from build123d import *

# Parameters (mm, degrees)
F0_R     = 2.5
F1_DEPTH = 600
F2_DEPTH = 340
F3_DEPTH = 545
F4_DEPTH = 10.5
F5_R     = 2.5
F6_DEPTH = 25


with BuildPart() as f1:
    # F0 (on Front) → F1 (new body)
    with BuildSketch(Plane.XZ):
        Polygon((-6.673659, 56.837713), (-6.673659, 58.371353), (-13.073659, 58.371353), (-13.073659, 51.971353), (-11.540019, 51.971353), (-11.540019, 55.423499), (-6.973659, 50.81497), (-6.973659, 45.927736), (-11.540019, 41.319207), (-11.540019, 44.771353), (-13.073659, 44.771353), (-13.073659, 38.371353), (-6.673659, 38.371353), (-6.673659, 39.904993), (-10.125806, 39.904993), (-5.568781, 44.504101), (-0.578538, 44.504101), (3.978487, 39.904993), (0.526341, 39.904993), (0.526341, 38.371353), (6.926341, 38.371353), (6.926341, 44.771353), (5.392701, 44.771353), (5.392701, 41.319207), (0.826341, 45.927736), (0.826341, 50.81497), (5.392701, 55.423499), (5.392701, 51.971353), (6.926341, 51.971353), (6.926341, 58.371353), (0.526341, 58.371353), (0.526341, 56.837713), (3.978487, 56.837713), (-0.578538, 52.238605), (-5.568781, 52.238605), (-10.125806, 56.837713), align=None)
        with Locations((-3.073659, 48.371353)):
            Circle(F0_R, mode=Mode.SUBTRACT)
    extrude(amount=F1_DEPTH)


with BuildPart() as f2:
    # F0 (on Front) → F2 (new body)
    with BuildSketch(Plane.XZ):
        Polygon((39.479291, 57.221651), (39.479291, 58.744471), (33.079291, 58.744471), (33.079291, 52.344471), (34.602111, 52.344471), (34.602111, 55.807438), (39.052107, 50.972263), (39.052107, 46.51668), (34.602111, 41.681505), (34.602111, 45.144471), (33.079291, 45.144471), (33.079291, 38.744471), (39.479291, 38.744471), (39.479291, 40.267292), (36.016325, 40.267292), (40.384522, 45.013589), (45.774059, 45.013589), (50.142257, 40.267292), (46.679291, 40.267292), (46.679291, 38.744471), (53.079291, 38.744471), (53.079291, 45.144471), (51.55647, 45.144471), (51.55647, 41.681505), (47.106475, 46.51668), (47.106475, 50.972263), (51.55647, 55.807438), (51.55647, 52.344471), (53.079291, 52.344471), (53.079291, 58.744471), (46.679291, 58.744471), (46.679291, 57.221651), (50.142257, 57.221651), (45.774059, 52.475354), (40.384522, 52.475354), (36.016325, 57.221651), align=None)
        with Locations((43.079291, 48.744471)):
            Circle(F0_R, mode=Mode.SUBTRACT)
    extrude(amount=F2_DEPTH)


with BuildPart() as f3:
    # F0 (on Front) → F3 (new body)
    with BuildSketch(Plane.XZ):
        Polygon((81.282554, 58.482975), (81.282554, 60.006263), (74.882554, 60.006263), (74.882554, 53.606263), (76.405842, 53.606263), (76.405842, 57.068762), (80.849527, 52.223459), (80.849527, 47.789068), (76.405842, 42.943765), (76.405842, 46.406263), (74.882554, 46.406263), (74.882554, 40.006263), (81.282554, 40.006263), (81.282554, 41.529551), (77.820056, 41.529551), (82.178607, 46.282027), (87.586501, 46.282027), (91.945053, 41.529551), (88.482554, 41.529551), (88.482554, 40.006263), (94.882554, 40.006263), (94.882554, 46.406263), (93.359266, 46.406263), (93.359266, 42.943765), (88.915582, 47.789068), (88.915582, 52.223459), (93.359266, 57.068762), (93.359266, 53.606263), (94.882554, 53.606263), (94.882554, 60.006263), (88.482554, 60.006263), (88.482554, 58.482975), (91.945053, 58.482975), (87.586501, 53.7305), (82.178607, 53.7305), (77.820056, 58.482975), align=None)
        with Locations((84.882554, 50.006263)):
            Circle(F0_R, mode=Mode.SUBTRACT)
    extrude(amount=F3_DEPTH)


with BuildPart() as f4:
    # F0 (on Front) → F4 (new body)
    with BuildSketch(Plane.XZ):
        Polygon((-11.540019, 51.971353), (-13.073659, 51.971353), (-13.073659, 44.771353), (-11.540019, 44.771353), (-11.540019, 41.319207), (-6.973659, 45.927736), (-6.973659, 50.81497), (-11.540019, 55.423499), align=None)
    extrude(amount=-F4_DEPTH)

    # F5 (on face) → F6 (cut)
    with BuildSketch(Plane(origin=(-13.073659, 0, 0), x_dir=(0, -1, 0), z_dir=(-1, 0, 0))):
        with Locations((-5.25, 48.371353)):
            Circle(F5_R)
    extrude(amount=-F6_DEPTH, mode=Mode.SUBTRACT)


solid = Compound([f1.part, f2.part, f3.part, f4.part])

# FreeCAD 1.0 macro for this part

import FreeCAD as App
import Part
import Sketcher

V = App.Vector
Q = App.Units.Quantity

doc = App.newDocument("Part")
body = doc.addObject("PartDesign::Body", "Body")

# Sketch on XZ plane
sketch1 = body.newObject("Sketcher::SketchObject", "Sketch")
sketch1.AttachmentSupport = (doc.getObject("XZ_Plane"), [""])
sketch1.MapMode = "FlatFace"
sketch1.addGeometry([
    Part.LineSegment(V(-6.673659, 56.837713, 0), V(-6.673659, 58.371353, 0)),  # 0
    Part.LineSegment(V(-6.673659, 58.371353, 0), V(-13.073659, 58.371353, 0)),  # 1
    Part.LineSegment(V(-13.073659, 58.371353, 0), V(-13.073659, 51.971353, 0)),  # 2
    Part.LineSegment(V(-13.073659, 51.971353, 0), V(-11.540019, 51.971353, 0)),  # 3
    Part.LineSegment(V(-11.540019, 51.971353, 0), V(-11.540019, 55.423499, 0)),  # 4
    Part.LineSegment(V(-11.540019, 55.423499, 0), V(-6.973659, 50.81497, 0)),  # 5
    Part.LineSegment(V(-6.973659, 50.81497, 0), V(-6.973659, 45.927736, 0)),  # 6
    Part.LineSegment(V(-6.973659, 45.927736, 0), V(-11.540019, 41.319207, 0)),  # 7
    Part.LineSegment(V(-11.540019, 41.319207, 0), V(-11.540019, 44.771353, 0)),  # 8
    Part.LineSegment(V(-11.540019, 44.771353, 0), V(-13.073659, 44.771353, 0)),  # 9
    Part.LineSegment(V(-13.073659, 44.771353, 0), V(-13.073659, 38.371353, 0)),  # 10
    Part.LineSegment(V(-13.073659, 38.371353, 0), V(-6.673659, 38.371353, 0)),  # 11
    Part.LineSegment(V(-6.673659, 38.371353, 0), V(-6.673659, 39.904993, 0)),  # 12
    Part.LineSegment(V(-6.673659, 39.904993, 0), V(-10.125806, 39.904993, 0)),  # 13
    Part.LineSegment(V(-10.125806, 39.904993, 0), V(-5.568781, 44.504101, 0)),  # 14
    Part.LineSegment(V(-5.568781, 44.504101, 0), V(-0.578538, 44.504101, 0)),  # 15
    Part.LineSegment(V(-0.578538, 44.504101, 0), V(3.978487, 39.904993, 0)),  # 16
    Part.LineSegment(V(3.978487, 39.904993, 0), V(0.526341, 39.904993, 0)),  # 17
    Part.LineSegment(V(0.526341, 39.904993, 0), V(0.526341, 38.371353, 0)),  # 18
    Part.LineSegment(V(0.526341, 38.371353, 0), V(6.926341, 38.371353, 0)),  # 19
    Part.LineSegment(V(6.926341, 38.371353, 0), V(6.926341, 44.771353, 0)),  # 20
    Part.LineSegment(V(6.926341, 44.771353, 0), V(5.392701, 44.771353, 0)),  # 21
    Part.LineSegment(V(5.392701, 44.771353, 0), V(5.392701, 41.319207, 0)),  # 22
    Part.LineSegment(V(5.392701, 41.319207, 0), V(0.826341, 45.927736, 0)),  # 23
    Part.LineSegment(V(0.826341, 45.927736, 0), V(0.826341, 50.81497, 0)),  # 24
    Part.LineSegment(V(0.826341, 50.81497, 0), V(5.392701, 55.423499, 0)),  # 25
    Part.LineSegment(V(5.392701, 55.423499, 0), V(5.392701, 51.971353, 0)),  # 26
    Part.LineSegment(V(5.392701, 51.971353, 0), V(6.926341, 51.971353, 0)),  # 27
    Part.LineSegment(V(6.926341, 51.971353, 0), V(6.926341, 58.371353, 0)),  # 28
    Part.LineSegment(V(6.926341, 58.371353, 0), V(0.526341, 58.371353, 0)),  # 29
    Part.LineSegment(V(0.526341, 58.371353, 0), V(0.526341, 56.837713, 0)),  # 30
    Part.LineSegment(V(0.526341, 56.837713, 0), V(3.978487, 56.837713, 0)),  # 31
    Part.LineSegment(V(3.978487, 56.837713, 0), V(-0.578538, 52.238605, 0)),  # 32
    Part.LineSegment(V(-0.578538, 52.238605, 0), V(-5.568781, 52.238605, 0)),  # 33
    Part.LineSegment(V(-5.568781, 52.238605, 0), V(-10.125806, 56.837713, 0)),  # 34
    Part.LineSegment(V(-10.125806, 56.837713, 0), V(-6.673659, 56.837713, 0)),  # 35
    Part.Circle(V(-3.073659, 48.371353, 0), V(0, 0, 1), 2.5),  # 36
], False)
sketch1.addConstraint([
    Sketcher.Constraint("Coincident", 0, 2, 1, 1),
    Sketcher.Constraint("Coincident", 1, 2, 2, 1),
    Sketcher.Constraint("Coincident", 2, 2, 3, 1),
    Sketcher.Constraint("Coincident", 3, 2, 4, 1),
    Sketcher.Constraint("Coincident", 4, 2, 5, 1),
    Sketcher.Constraint("Coincident", 5, 2, 6, 1),
    Sketcher.Constraint("Coincident", 6, 2, 7, 1),
    Sketcher.Constraint("Coincident", 7, 2, 8, 1),
    Sketcher.Constraint("Coincident", 8, 2, 9, 1),
    Sketcher.Constraint("Coincident", 9, 2, 10, 1),
    Sketcher.Constraint("Coincident", 10, 2, 11, 1),
    Sketcher.Constraint("Coincident", 11, 2, 12, 1),
    Sketcher.Constraint("Coincident", 12, 2, 13, 1),
    Sketcher.Constraint("Coincident", 13, 2, 14, 1),
    Sketcher.Constraint("Coincident", 14, 2, 15, 1),
    Sketcher.Constraint("Coincident", 15, 2, 16, 1),
    Sketcher.Constraint("Coincident", 16, 2, 17, 1),
    Sketcher.Constraint("Coincident", 17, 2, 18, 1),
    Sketcher.Constraint("Coincident", 18, 2, 19, 1),
    Sketcher.Constraint("Coincident", 19, 2, 20, 1),
    Sketcher.Constraint("Coincident", 20, 2, 21, 1),
    Sketcher.Constraint("Coincident", 21, 2, 22, 1),
    Sketcher.Constraint("Coincident", 22, 2, 23, 1),
    Sketcher.Constraint("Coincident", 23, 2, 24, 1),
    Sketcher.Constraint("Coincident", 24, 2, 25, 1),
    Sketcher.Constraint("Coincident", 25, 2, 26, 1),
    Sketcher.Constraint("Coincident", 26, 2, 27, 1),
    Sketcher.Constraint("Coincident", 27, 2, 28, 1),
    Sketcher.Constraint("Coincident", 28, 2, 29, 1),
    Sketcher.Constraint("Coincident", 29, 2, 30, 1),
    Sketcher.Constraint("Coincident", 30, 2, 31, 1),
    Sketcher.Constraint("Coincident", 31, 2, 32, 1),
    Sketcher.Constraint("Coincident", 32, 2, 33, 1),
    Sketcher.Constraint("Coincident", 33, 2, 34, 1),
    Sketcher.Constraint("Coincident", 34, 2, 35, 1),
    Sketcher.Constraint("Coincident", 35, 2, 0, 1),
    Sketcher.Constraint("Vertical", 0),
    Sketcher.Constraint("Horizontal", 1),
    Sketcher.Constraint("Vertical", 2),
    Sketcher.Constraint("Horizontal", 3),
    Sketcher.Constraint("Vertical", 4),
    Sketcher.Constraint("Vertical", 6),
    Sketcher.Constraint("Vertical", 8),
    Sketcher.Constraint("Horizontal", 9),
    Sketcher.Constraint("Vertical", 10),
    Sketcher.Constraint("Horizontal", 11),
    Sketcher.Constraint("Vertical", 12),
    Sketcher.Constraint("Horizontal", 13),
    Sketcher.Constraint("Horizontal", 15),
    Sketcher.Constraint("Horizontal", 17),
    Sketcher.Constraint("Vertical", 18),
    Sketcher.Constraint("Horizontal", 19),
    Sketcher.Constraint("Vertical", 20),
    Sketcher.Constraint("Horizontal", 21),
    Sketcher.Constraint("Vertical", 22),
    Sketcher.Constraint("Vertical", 24),
    Sketcher.Constraint("Vertical", 26),
    Sketcher.Constraint("Horizontal", 27),
    Sketcher.Constraint("Vertical", 28),
    Sketcher.Constraint("Horizontal", 29),
    Sketcher.Constraint("Vertical", 30),
    Sketcher.Constraint("Horizontal", 31),
    Sketcher.Constraint("Horizontal", 33),
    Sketcher.Constraint("Horizontal", 35),
    Sketcher.Constraint("Parallel", 7, 14),
    Sketcher.Constraint("Parallel", 5, 16),
    Sketcher.Constraint("Parallel", 16, 23),
    Sketcher.Constraint("Parallel", 14, 25),
    Sketcher.Constraint("Parallel", 25, 32),
    Sketcher.Constraint("Parallel", 23, 34),
    Sketcher.Constraint("Horizontal", 13, 2, 16, 2),
    Sketcher.Constraint("Horizontal", 11, 2, 18, 2),
    Sketcher.Constraint("Horizontal", 9, 2, 20, 2),
    Sketcher.Constraint("Horizontal", 7, 2, 22, 2),
    Sketcher.Constraint("Horizontal", 6, 2, 23, 2),
    Sketcher.Constraint("Horizontal", 5, 2, 24, 2),
    Sketcher.Constraint("Horizontal", 4, 2, 25, 2),
    Sketcher.Constraint("Horizontal", 3, 2, 26, 2),
    Sketcher.Constraint("Horizontal", 1, 2, 28, 2),
    Sketcher.Constraint("Horizontal", 31, 2, 34, 2),
    Sketcher.Constraint("Vertical", 4, 2, 7, 2),
    Sketcher.Constraint("Vertical", 2, 2, 9, 2),
    Sketcher.Constraint("Vertical", 0, 2, 11, 2),
    Sketcher.Constraint("Vertical", 22, 2, 25, 2),
    Sketcher.Constraint("Vertical", 20, 2, 27, 2),
    Sketcher.Constraint("Vertical", 18, 2, 29, 2),
    Sketcher.Constraint("Vertical", 16, 2, 31, 2),
    Sketcher.Constraint("Vertical", 15, 2, 32, 2),
    Sketcher.Constraint("Vertical", 14, 2, 33, 2),
    Sketcher.Constraint("Equal", 13, 17),
    Sketcher.Constraint("Equal", 11, 19),
    Sketcher.Constraint("Equal", 9, 21),
    Sketcher.Constraint("Equal", 27, 0),
    Sketcher.Constraint("Equal", 29, 2),
    Sketcher.Constraint("Equal", 35, 4),
    Sketcher.Constraint("Equal", 4, 8),
    Sketcher.Constraint("Equal", 2, 10),
    Sketcher.Constraint("Equal", 0, 12),
    Sketcher.Constraint("Diameter", 36, Q("5 mm")),
    Sketcher.Constraint("DistanceX", 1, 2, 1, 1, Q("6.4 mm")),
    Sketcher.Constraint("DistanceY", 36, 3, 0, 2, Q("10 mm")),
    Sketcher.Constraint("DistanceX", 1, 2, 36, 3, Q("10 mm")),
    Sketcher.Constraint("DistanceX", 5, 2, 36, 3, Q("3.9 mm")),
    Sketcher.Constraint("DistanceY", 8, 2, 3, 2, Q("7.2 mm")),
    Sketcher.Constraint("DistanceX", 12, 2, 17, 2, Q("7.2 mm")),
    Sketcher.Constraint("DistanceX", 3, 1, 3, 2, Q("1.53364 mm")),
    Sketcher.Constraint("DistanceY", -1, 1, 4, 2, Q("55.423499 mm")),
    Sketcher.Constraint("DistanceY", -1, 1, 14, 2, Q("44.504101 mm")),
    Sketcher.Constraint("DistanceX", -1, 1, 21, 2, Q("5.392701 mm")),
    Sketcher.Constraint("DistanceX", 13, 2, 13, 1, Q("3.452147 mm")),
    Sketcher.Constraint("DistanceX", 15, 1, 15, 2, Q("4.990243 mm")),
])
pad1 = body.newObject("PartDesign::Pad", "Pad")
pad1.Profile = sketch1
pad1.Length = 600
body2 = doc.addObject("PartDesign::Body", "Body001")

# Sketch on XZ plane
sketch2 = body2.newObject("Sketcher::SketchObject", "Sketch001")
sketch2.AttachmentSupport = (doc.getObject("XZ_Plane001"), [""])
sketch2.MapMode = "FlatFace"
sketch2.addGeometry([
    Part.LineSegment(V(39.479291, 57.221651, 0), V(39.479291, 58.744471, 0)),  # 0
    Part.LineSegment(V(39.479291, 58.744471, 0), V(33.079291, 58.744471, 0)),  # 1
    Part.LineSegment(V(33.079291, 58.744471, 0), V(33.079291, 52.344471, 0)),  # 2
    Part.LineSegment(V(33.079291, 52.344471, 0), V(34.602111, 52.344471, 0)),  # 3
    Part.LineSegment(V(34.602111, 52.344471, 0), V(34.602111, 55.807438, 0)),  # 4
    Part.LineSegment(V(34.602111, 55.807438, 0), V(39.052107, 50.972263, 0)),  # 5
    Part.LineSegment(V(39.052107, 50.972263, 0), V(39.052107, 46.51668, 0)),  # 6
    Part.LineSegment(V(39.052107, 46.51668, 0), V(34.602111, 41.681505, 0)),  # 7
    Part.LineSegment(V(34.602111, 41.681505, 0), V(34.602111, 45.144471, 0)),  # 8
    Part.LineSegment(V(34.602111, 45.144471, 0), V(33.079291, 45.144471, 0)),  # 9
    Part.LineSegment(V(33.079291, 45.144471, 0), V(33.079291, 38.744471, 0)),  # 10
    Part.LineSegment(V(33.079291, 38.744471, 0), V(39.479291, 38.744471, 0)),  # 11
    Part.LineSegment(V(39.479291, 38.744471, 0), V(39.479291, 40.267292, 0)),  # 12
    Part.LineSegment(V(39.479291, 40.267292, 0), V(36.016325, 40.267292, 0)),  # 13
    Part.LineSegment(V(36.016325, 40.267292, 0), V(40.384522, 45.013589, 0)),  # 14
    Part.LineSegment(V(40.384522, 45.013589, 0), V(45.774059, 45.013589, 0)),  # 15
    Part.LineSegment(V(45.774059, 45.013589, 0), V(50.142257, 40.267292, 0)),  # 16
    Part.LineSegment(V(50.142257, 40.267292, 0), V(46.679291, 40.267292, 0)),  # 17
    Part.LineSegment(V(46.679291, 40.267292, 0), V(46.679291, 38.744471, 0)),  # 18
    Part.LineSegment(V(46.679291, 38.744471, 0), V(53.079291, 38.744471, 0)),  # 19
    Part.LineSegment(V(53.079291, 38.744471, 0), V(53.079291, 45.144471, 0)),  # 20
    Part.LineSegment(V(53.079291, 45.144471, 0), V(51.55647, 45.144471, 0)),  # 21
    Part.LineSegment(V(51.55647, 45.144471, 0), V(51.55647, 41.681505, 0)),  # 22
    Part.LineSegment(V(51.55647, 41.681505, 0), V(47.106475, 46.51668, 0)),  # 23
    Part.LineSegment(V(47.106475, 46.51668, 0), V(47.106475, 50.972263, 0)),  # 24
    Part.LineSegment(V(47.106475, 50.972263, 0), V(51.55647, 55.807438, 0)),  # 25
    Part.LineSegment(V(51.55647, 55.807438, 0), V(51.55647, 52.344471, 0)),  # 26
    Part.LineSegment(V(51.55647, 52.344471, 0), V(53.079291, 52.344471, 0)),  # 27
    Part.LineSegment(V(53.079291, 52.344471, 0), V(53.079291, 58.744471, 0)),  # 28
    Part.LineSegment(V(53.079291, 58.744471, 0), V(46.679291, 58.744471, 0)),  # 29
    Part.LineSegment(V(46.679291, 58.744471, 0), V(46.679291, 57.221651, 0)),  # 30
    Part.LineSegment(V(46.679291, 57.221651, 0), V(50.142257, 57.221651, 0)),  # 31
    Part.LineSegment(V(50.142257, 57.221651, 0), V(45.774059, 52.475354, 0)),  # 32
    Part.LineSegment(V(45.774059, 52.475354, 0), V(40.384522, 52.475354, 0)),  # 33
    Part.LineSegment(V(40.384522, 52.475354, 0), V(36.016325, 57.221651, 0)),  # 34
    Part.LineSegment(V(36.016325, 57.221651, 0), V(39.479291, 57.221651, 0)),  # 35
    Part.Circle(V(43.079291, 48.744471, 0), V(0, 0, 1), 2.5),  # 36
], False)
sketch2.addConstraint([
    Sketcher.Constraint("Coincident", 0, 2, 1, 1),
    Sketcher.Constraint("Coincident", 1, 2, 2, 1),
    Sketcher.Constraint("Coincident", 2, 2, 3, 1),
    Sketcher.Constraint("Coincident", 3, 2, 4, 1),
    Sketcher.Constraint("Coincident", 4, 2, 5, 1),
    Sketcher.Constraint("Coincident", 5, 2, 6, 1),
    Sketcher.Constraint("Coincident", 6, 2, 7, 1),
    Sketcher.Constraint("Coincident", 7, 2, 8, 1),
    Sketcher.Constraint("Coincident", 8, 2, 9, 1),
    Sketcher.Constraint("Coincident", 9, 2, 10, 1),
    Sketcher.Constraint("Coincident", 10, 2, 11, 1),
    Sketcher.Constraint("Coincident", 11, 2, 12, 1),
    Sketcher.Constraint("Coincident", 12, 2, 13, 1),
    Sketcher.Constraint("Coincident", 13, 2, 14, 1),
    Sketcher.Constraint("Coincident", 14, 2, 15, 1),
    Sketcher.Constraint("Coincident", 15, 2, 16, 1),
    Sketcher.Constraint("Coincident", 16, 2, 17, 1),
    Sketcher.Constraint("Coincident", 17, 2, 18, 1),
    Sketcher.Constraint("Coincident", 18, 2, 19, 1),
    Sketcher.Constraint("Coincident", 19, 2, 20, 1),
    Sketcher.Constraint("Coincident", 20, 2, 21, 1),
    Sketcher.Constraint("Coincident", 21, 2, 22, 1),
    Sketcher.Constraint("Coincident", 22, 2, 23, 1),
    Sketcher.Constraint("Coincident", 23, 2, 24, 1),
    Sketcher.Constraint("Coincident", 24, 2, 25, 1),
    Sketcher.Constraint("Coincident", 25, 2, 26, 1),
    Sketcher.Constraint("Coincident", 26, 2, 27, 1),
    Sketcher.Constraint("Coincident", 27, 2, 28, 1),
    Sketcher.Constraint("Coincident", 28, 2, 29, 1),
    Sketcher.Constraint("Coincident", 29, 2, 30, 1),
    Sketcher.Constraint("Coincident", 30, 2, 31, 1),
    Sketcher.Constraint("Coincident", 31, 2, 32, 1),
    Sketcher.Constraint("Coincident", 32, 2, 33, 1),
    Sketcher.Constraint("Coincident", 33, 2, 34, 1),
    Sketcher.Constraint("Coincident", 34, 2, 35, 1),
    Sketcher.Constraint("Coincident", 35, 2, 0, 1),
    Sketcher.Constraint("Vertical", 0),
    Sketcher.Constraint("Horizontal", 1),
    Sketcher.Constraint("Vertical", 2),
    Sketcher.Constraint("Horizontal", 3),
    Sketcher.Constraint("Vertical", 4),
    Sketcher.Constraint("Vertical", 6),
    Sketcher.Constraint("Vertical", 8),
    Sketcher.Constraint("Horizontal", 9),
    Sketcher.Constraint("Vertical", 10),
    Sketcher.Constraint("Horizontal", 11),
    Sketcher.Constraint("Vertical", 12),
    Sketcher.Constraint("Horizontal", 13),
    Sketcher.Constraint("Horizontal", 15),
    Sketcher.Constraint("Horizontal", 17),
    Sketcher.Constraint("Vertical", 18),
    Sketcher.Constraint("Horizontal", 19),
    Sketcher.Constraint("Vertical", 20),
    Sketcher.Constraint("Horizontal", 21),
    Sketcher.Constraint("Vertical", 22),
    Sketcher.Constraint("Vertical", 24),
    Sketcher.Constraint("Vertical", 26),
    Sketcher.Constraint("Horizontal", 27),
    Sketcher.Constraint("Vertical", 28),
    Sketcher.Constraint("Horizontal", 29),
    Sketcher.Constraint("Vertical", 30),
    Sketcher.Constraint("Horizontal", 31),
    Sketcher.Constraint("Horizontal", 33),
    Sketcher.Constraint("Horizontal", 35),
    Sketcher.Constraint("Parallel", 7, 14),
    Sketcher.Constraint("Parallel", 5, 16),
    Sketcher.Constraint("Parallel", 16, 23),
    Sketcher.Constraint("Parallel", 14, 25),
    Sketcher.Constraint("Parallel", 25, 32),
    Sketcher.Constraint("Parallel", 23, 34),
    Sketcher.Constraint("Horizontal", 13, 2, 16, 2),
    Sketcher.Constraint("Horizontal", 11, 2, 18, 2),
    Sketcher.Constraint("Horizontal", 9, 2, 20, 2),
    Sketcher.Constraint("Horizontal", 7, 2, 22, 2),
    Sketcher.Constraint("Horizontal", 6, 2, 23, 2),
    Sketcher.Constraint("Horizontal", 5, 2, 24, 2),
    Sketcher.Constraint("Horizontal", 4, 2, 25, 2),
    Sketcher.Constraint("Horizontal", 3, 2, 26, 2),
    Sketcher.Constraint("Horizontal", 1, 2, 28, 2),
    Sketcher.Constraint("Horizontal", 31, 2, 34, 2),
    Sketcher.Constraint("Vertical", 4, 2, 7, 2),
    Sketcher.Constraint("Vertical", 2, 2, 9, 2),
    Sketcher.Constraint("Vertical", 0, 2, 11, 2),
    Sketcher.Constraint("Vertical", 22, 2, 25, 2),
    Sketcher.Constraint("Vertical", 20, 2, 27, 2),
    Sketcher.Constraint("Vertical", 18, 2, 29, 2),
    Sketcher.Constraint("Vertical", 16, 2, 31, 2),
    Sketcher.Constraint("Vertical", 15, 2, 32, 2),
    Sketcher.Constraint("Vertical", 14, 2, 33, 2),
    Sketcher.Constraint("Equal", 13, 17),
    Sketcher.Constraint("Equal", 11, 19),
    Sketcher.Constraint("Equal", 9, 21),
    Sketcher.Constraint("Equal", 27, 0),
    Sketcher.Constraint("Equal", 29, 2),
    Sketcher.Constraint("Equal", 35, 4),
    Sketcher.Constraint("Equal", 4, 8),
    Sketcher.Constraint("Equal", 2, 10),
    Sketcher.Constraint("Equal", 0, 12),
    Sketcher.Constraint("Diameter", 36, Q("5 mm")),
    Sketcher.Constraint("DistanceX", 1, 2, 1, 1, Q("6.4 mm")),
    Sketcher.Constraint("DistanceY", 36, 3, 0, 2, Q("10 mm")),
    Sketcher.Constraint("DistanceX", 1, 2, 36, 3, Q("10 mm")),
    Sketcher.Constraint("DistanceY", 8, 2, 3, 2, Q("7.2 mm")),
    Sketcher.Constraint("DistanceX", 12, 2, 17, 2, Q("7.2 mm")),
    Sketcher.Constraint("DistanceX", 3, 1, 3, 2, Q("1.52282 mm")),
    Sketcher.Constraint("DistanceX", 13, 2, 13, 1, Q("3.462966 mm")),
    Sketcher.Constraint("DistanceX", 15, 1, 15, 2, Q("5.389537 mm")),
    Sketcher.Constraint("DistanceY", 6, 2, 6, 1, Q("4.455583 mm")),
    Sketcher.Constraint("DistanceX", -1, 1, 36, 3, Q("43.079291 mm")),
    Sketcher.Constraint("DistanceY", -1, 1, 36, 3, Q("48.744471 mm")),
    Sketcher.Constraint("DistanceY", -1, 1, 14, 2, Q("45.013589 mm")),
])
pad2 = body2.newObject("PartDesign::Pad", "Pad001")
pad2.Profile = sketch2
pad2.Length = 340
body3 = doc.addObject("PartDesign::Body", "Body002")

# Sketch on XZ plane
sketch3 = body3.newObject("Sketcher::SketchObject", "Sketch002")
sketch3.AttachmentSupport = (doc.getObject("XZ_Plane002"), [""])
sketch3.MapMode = "FlatFace"
sketch3.addGeometry([
    Part.LineSegment(V(81.282554, 58.482975, 0), V(81.282554, 60.006263, 0)),  # 0
    Part.LineSegment(V(81.282554, 60.006263, 0), V(74.882554, 60.006263, 0)),  # 1
    Part.LineSegment(V(74.882554, 60.006263, 0), V(74.882554, 53.606263, 0)),  # 2
    Part.LineSegment(V(74.882554, 53.606263, 0), V(76.405842, 53.606263, 0)),  # 3
    Part.LineSegment(V(76.405842, 53.606263, 0), V(76.405842, 57.068762, 0)),  # 4
    Part.LineSegment(V(76.405842, 57.068762, 0), V(80.849527, 52.223459, 0)),  # 5
    Part.LineSegment(V(80.849527, 52.223459, 0), V(80.849527, 47.789068, 0)),  # 6
    Part.LineSegment(V(80.849527, 47.789068, 0), V(76.405842, 42.943765, 0)),  # 7
    Part.LineSegment(V(76.405842, 42.943765, 0), V(76.405842, 46.406263, 0)),  # 8
    Part.LineSegment(V(76.405842, 46.406263, 0), V(74.882554, 46.406263, 0)),  # 9
    Part.LineSegment(V(74.882554, 46.406263, 0), V(74.882554, 40.006263, 0)),  # 10
    Part.LineSegment(V(74.882554, 40.006263, 0), V(81.282554, 40.006263, 0)),  # 11
    Part.LineSegment(V(81.282554, 40.006263, 0), V(81.282554, 41.529551, 0)),  # 12
    Part.LineSegment(V(81.282554, 41.529551, 0), V(77.820056, 41.529551, 0)),  # 13
    Part.LineSegment(V(77.820056, 41.529551, 0), V(82.178607, 46.282027, 0)),  # 14
    Part.LineSegment(V(82.178607, 46.282027, 0), V(87.586501, 46.282027, 0)),  # 15
    Part.LineSegment(V(87.586501, 46.282027, 0), V(91.945053, 41.529551, 0)),  # 16
    Part.LineSegment(V(91.945053, 41.529551, 0), V(88.482554, 41.529551, 0)),  # 17
    Part.LineSegment(V(88.482554, 41.529551, 0), V(88.482554, 40.006263, 0)),  # 18
    Part.LineSegment(V(88.482554, 40.006263, 0), V(94.882554, 40.006263, 0)),  # 19
    Part.LineSegment(V(94.882554, 40.006263, 0), V(94.882554, 46.406263, 0)),  # 20
    Part.LineSegment(V(94.882554, 46.406263, 0), V(93.359266, 46.406263, 0)),  # 21
    Part.LineSegment(V(93.359266, 46.406263, 0), V(93.359266, 42.943765, 0)),  # 22
    Part.LineSegment(V(93.359266, 42.943765, 0), V(88.915582, 47.789068, 0)),  # 23
    Part.LineSegment(V(88.915582, 47.789068, 0), V(88.915582, 52.223459, 0)),  # 24
    Part.LineSegment(V(88.915582, 52.223459, 0), V(93.359266, 57.068762, 0)),  # 25
    Part.LineSegment(V(93.359266, 57.068762, 0), V(93.359266, 53.606263, 0)),  # 26
    Part.LineSegment(V(93.359266, 53.606263, 0), V(94.882554, 53.606263, 0)),  # 27
    Part.LineSegment(V(94.882554, 53.606263, 0), V(94.882554, 60.006263, 0)),  # 28
    Part.LineSegment(V(94.882554, 60.006263, 0), V(88.482554, 60.006263, 0)),  # 29
    Part.LineSegment(V(88.482554, 60.006263, 0), V(88.482554, 58.482975, 0)),  # 30
    Part.LineSegment(V(88.482554, 58.482975, 0), V(91.945053, 58.482975, 0)),  # 31
    Part.LineSegment(V(91.945053, 58.482975, 0), V(87.586501, 53.7305, 0)),  # 32
    Part.LineSegment(V(87.586501, 53.7305, 0), V(82.178607, 53.7305, 0)),  # 33
    Part.LineSegment(V(82.178607, 53.7305, 0), V(77.820056, 58.482975, 0)),  # 34
    Part.LineSegment(V(77.820056, 58.482975, 0), V(81.282554, 58.482975, 0)),  # 35
    Part.Circle(V(84.882554, 50.006263, 0), V(0, 0, 1), 2.5),  # 36
], False)
sketch3.addConstraint([
    Sketcher.Constraint("Coincident", 0, 2, 1, 1),
    Sketcher.Constraint("Coincident", 1, 2, 2, 1),
    Sketcher.Constraint("Coincident", 2, 2, 3, 1),
    Sketcher.Constraint("Coincident", 3, 2, 4, 1),
    Sketcher.Constraint("Coincident", 4, 2, 5, 1),
    Sketcher.Constraint("Coincident", 5, 2, 6, 1),
    Sketcher.Constraint("Coincident", 6, 2, 7, 1),
    Sketcher.Constraint("Coincident", 7, 2, 8, 1),
    Sketcher.Constraint("Coincident", 8, 2, 9, 1),
    Sketcher.Constraint("Coincident", 9, 2, 10, 1),
    Sketcher.Constraint("Coincident", 10, 2, 11, 1),
    Sketcher.Constraint("Coincident", 11, 2, 12, 1),
    Sketcher.Constraint("Coincident", 12, 2, 13, 1),
    Sketcher.Constraint("Coincident", 13, 2, 14, 1),
    Sketcher.Constraint("Coincident", 14, 2, 15, 1),
    Sketcher.Constraint("Coincident", 15, 2, 16, 1),
    Sketcher.Constraint("Coincident", 16, 2, 17, 1),
    Sketcher.Constraint("Coincident", 17, 2, 18, 1),
    Sketcher.Constraint("Coincident", 18, 2, 19, 1),
    Sketcher.Constraint("Coincident", 19, 2, 20, 1),
    Sketcher.Constraint("Coincident", 20, 2, 21, 1),
    Sketcher.Constraint("Coincident", 21, 2, 22, 1),
    Sketcher.Constraint("Coincident", 22, 2, 23, 1),
    Sketcher.Constraint("Coincident", 23, 2, 24, 1),
    Sketcher.Constraint("Coincident", 24, 2, 25, 1),
    Sketcher.Constraint("Coincident", 25, 2, 26, 1),
    Sketcher.Constraint("Coincident", 26, 2, 27, 1),
    Sketcher.Constraint("Coincident", 27, 2, 28, 1),
    Sketcher.Constraint("Coincident", 28, 2, 29, 1),
    Sketcher.Constraint("Coincident", 29, 2, 30, 1),
    Sketcher.Constraint("Coincident", 30, 2, 31, 1),
    Sketcher.Constraint("Coincident", 31, 2, 32, 1),
    Sketcher.Constraint("Coincident", 32, 2, 33, 1),
    Sketcher.Constraint("Coincident", 33, 2, 34, 1),
    Sketcher.Constraint("Coincident", 34, 2, 35, 1),
    Sketcher.Constraint("Coincident", 35, 2, 0, 1),
    Sketcher.Constraint("Vertical", 0),
    Sketcher.Constraint("Horizontal", 1),
    Sketcher.Constraint("Vertical", 2),
    Sketcher.Constraint("Horizontal", 3),
    Sketcher.Constraint("Vertical", 4),
    Sketcher.Constraint("Vertical", 6),
    Sketcher.Constraint("Vertical", 8),
    Sketcher.Constraint("Horizontal", 9),
    Sketcher.Constraint("Vertical", 10),
    Sketcher.Constraint("Horizontal", 11),
    Sketcher.Constraint("Vertical", 12),
    Sketcher.Constraint("Horizontal", 13),
    Sketcher.Constraint("Horizontal", 15),
    Sketcher.Constraint("Horizontal", 17),
    Sketcher.Constraint("Vertical", 18),
    Sketcher.Constraint("Horizontal", 19),
    Sketcher.Constraint("Vertical", 20),
    Sketcher.Constraint("Horizontal", 21),
    Sketcher.Constraint("Vertical", 22),
    Sketcher.Constraint("Vertical", 24),
    Sketcher.Constraint("Vertical", 26),
    Sketcher.Constraint("Horizontal", 27),
    Sketcher.Constraint("Vertical", 28),
    Sketcher.Constraint("Horizontal", 29),
    Sketcher.Constraint("Vertical", 30),
    Sketcher.Constraint("Horizontal", 31),
    Sketcher.Constraint("Horizontal", 33),
    Sketcher.Constraint("Horizontal", 35),
    Sketcher.Constraint("Parallel", 7, 14),
    Sketcher.Constraint("Parallel", 5, 16),
    Sketcher.Constraint("Parallel", 16, 23),
    Sketcher.Constraint("Parallel", 14, 25),
    Sketcher.Constraint("Parallel", 25, 32),
    Sketcher.Constraint("Parallel", 23, 34),
    Sketcher.Constraint("Horizontal", 13, 2, 16, 2),
    Sketcher.Constraint("Horizontal", 11, 2, 18, 2),
    Sketcher.Constraint("Horizontal", 9, 2, 20, 2),
    Sketcher.Constraint("Horizontal", 7, 2, 22, 2),
    Sketcher.Constraint("Horizontal", 6, 2, 23, 2),
    Sketcher.Constraint("Horizontal", 5, 2, 24, 2),
    Sketcher.Constraint("Horizontal", 4, 2, 25, 2),
    Sketcher.Constraint("Horizontal", 3, 2, 26, 2),
    Sketcher.Constraint("Horizontal", 1, 2, 28, 2),
    Sketcher.Constraint("Horizontal", 31, 2, 34, 2),
    Sketcher.Constraint("Vertical", 4, 2, 7, 2),
    Sketcher.Constraint("Vertical", 2, 2, 9, 2),
    Sketcher.Constraint("Vertical", 0, 2, 11, 2),
    Sketcher.Constraint("Vertical", 22, 2, 25, 2),
    Sketcher.Constraint("Vertical", 20, 2, 27, 2),
    Sketcher.Constraint("Vertical", 18, 2, 29, 2),
    Sketcher.Constraint("Vertical", 16, 2, 31, 2),
    Sketcher.Constraint("Vertical", 15, 2, 32, 2),
    Sketcher.Constraint("Vertical", 14, 2, 33, 2),
    Sketcher.Constraint("Equal", 13, 17),
    Sketcher.Constraint("Equal", 11, 19),
    Sketcher.Constraint("Equal", 9, 21),
    Sketcher.Constraint("Equal", 27, 0),
    Sketcher.Constraint("Equal", 29, 2),
    Sketcher.Constraint("Equal", 35, 4),
    Sketcher.Constraint("Equal", 4, 8),
    Sketcher.Constraint("Equal", 2, 10),
    Sketcher.Constraint("Equal", 0, 12),
    Sketcher.Constraint("Diameter", 36, Q("5 mm")),
    Sketcher.Constraint("DistanceX", 1, 2, 1, 1, Q("6.4 mm")),
    Sketcher.Constraint("DistanceY", 36, 3, 0, 2, Q("10 mm")),
    Sketcher.Constraint("DistanceX", 1, 2, 36, 3, Q("10 mm")),
    Sketcher.Constraint("DistanceY", 8, 2, 3, 2, Q("7.2 mm")),
    Sketcher.Constraint("DistanceX", 12, 2, 17, 2, Q("7.2 mm")),
    Sketcher.Constraint("DistanceX", 13, 2, 13, 1, Q("3.462498 mm")),
    Sketcher.Constraint("DistanceX", 3, 1, 3, 2, Q("1.523288 mm")),
    Sketcher.Constraint("DistanceY", 6, 2, 6, 1, Q("4.434391 mm")),
    Sketcher.Constraint("DistanceX", -1, 1, 15, 2, Q("87.586501 mm")),
    Sketcher.Constraint("DistanceY", -1, 1, 32, 2, Q("53.7305 mm")),
    Sketcher.Constraint("Distance", 16, Q("6.448488 mm")),
    Sketcher.Constraint("DistanceX", 15, 1, 15, 2, Q("5.407894 mm")),
])
pad3 = body3.newObject("PartDesign::Pad", "Pad002")
pad3.Profile = sketch3
pad3.Length = 545
body4 = doc.addObject("PartDesign::Body", "Body003")

# Sketch on XZ plane
sketch4 = body4.newObject("Sketcher::SketchObject", "Sketch003")
sketch4.AttachmentSupport = (doc.getObject("XZ_Plane003"), [""])
sketch4.MapMode = "FlatFace"
sketch4.addGeometry([
    Part.LineSegment(V(-11.540019, 51.971353, 0), V(-13.073659, 51.971353, 0)),  # 0
    Part.LineSegment(V(-13.073659, 51.971353, 0), V(-13.073659, 44.771353, 0)),  # 1
    Part.LineSegment(V(-13.073659, 44.771353, 0), V(-11.540019, 44.771353, 0)),  # 2
    Part.LineSegment(V(-11.540019, 44.771353, 0), V(-11.540019, 41.319207, 0)),  # 3
    Part.LineSegment(V(-11.540019, 41.319207, 0), V(-6.973659, 45.927736, 0)),  # 4
    Part.LineSegment(V(-6.973659, 45.927736, 0), V(-6.973659, 50.81497, 0)),  # 5
    Part.LineSegment(V(-6.973659, 50.81497, 0), V(-11.540019, 55.423499, 0)),  # 6
    Part.LineSegment(V(-11.540019, 55.423499, 0), V(-11.540019, 51.971353, 0)),  # 7
], False)
sketch4.addConstraint([
    Sketcher.Constraint("Coincident", 0, 2, 1, 1),
    Sketcher.Constraint("Coincident", 1, 2, 2, 1),
    Sketcher.Constraint("Coincident", 2, 2, 3, 1),
    Sketcher.Constraint("Coincident", 3, 2, 4, 1),
    Sketcher.Constraint("Coincident", 4, 2, 5, 1),
    Sketcher.Constraint("Coincident", 5, 2, 6, 1),
    Sketcher.Constraint("Coincident", 6, 2, 7, 1),
    Sketcher.Constraint("Coincident", 7, 2, 0, 1),
    Sketcher.Constraint("Horizontal", 0),
    Sketcher.Constraint("Vertical", 1),
    Sketcher.Constraint("Horizontal", 2),
    Sketcher.Constraint("Vertical", 3),
    Sketcher.Constraint("Vertical", 5),
    Sketcher.Constraint("Vertical", 7),
    Sketcher.Constraint("Vertical", 3, 2, 6, 2),
    Sketcher.Constraint("Equal", 3, 7),
    Sketcher.Constraint("Equal", 4, 6),
    Sketcher.Constraint("DistanceY", 1, 2, 1, 1, Q("7.2 mm")),
    Sketcher.Constraint("DistanceX", 1, 2, 4, 2, Q("6.1 mm")),
    Sketcher.Constraint("DistanceX", 0, 2, 0, 1, Q("1.53364 mm")),
    Sketcher.Constraint("DistanceY", -1, 1, 6, 2, Q("55.423499 mm")),
    Sketcher.Constraint("DistanceY", 3, 2, 3, 1, Q("3.452146 mm")),
    Sketcher.Constraint("DistanceY", 5, 1, 5, 2, Q("4.887234 mm")),
    Sketcher.Constraint("DistanceX", 0, 2, -1, 1, Q("13.073659 mm")),
])
pad4 = body4.newObject("PartDesign::Pad", "Pad003")
pad4.Profile = sketch4
pad4.Length = 10.5
pad4.Reversed = True

# Sketch on YZ plane
sketch5 = body4.newObject("Sketcher::SketchObject", "Sketch004")
sketch5.AttachmentSupport = (doc.getObject("YZ_Plane003"), [""])
sketch5.MapMode = "FlatFace"
sketch5.AttachmentOffset = App.Placement(V(0, 0, -13.073659), App.Rotation())
sketch5.addGeometry(Part.Circle(V(5.25, 48.371353, 0), V(0, 0, 1), 2.5), False)
sketch5.addConstraint([
    Sketcher.Constraint("Diameter", 0, Q("5 mm")),
    Sketcher.Constraint("DistanceX", -1, 1, 0, 3, Q("5.25 mm")),
    Sketcher.Constraint("DistanceY", -1, 1, 0, 3, Q("48.371353 mm")),
])
pocket1 = body4.newObject("PartDesign::Pocket", "Pocket")
pocket1.Profile = sketch5
pocket1.Length = 25
pocket1.Reversed = True

doc.recompute()
